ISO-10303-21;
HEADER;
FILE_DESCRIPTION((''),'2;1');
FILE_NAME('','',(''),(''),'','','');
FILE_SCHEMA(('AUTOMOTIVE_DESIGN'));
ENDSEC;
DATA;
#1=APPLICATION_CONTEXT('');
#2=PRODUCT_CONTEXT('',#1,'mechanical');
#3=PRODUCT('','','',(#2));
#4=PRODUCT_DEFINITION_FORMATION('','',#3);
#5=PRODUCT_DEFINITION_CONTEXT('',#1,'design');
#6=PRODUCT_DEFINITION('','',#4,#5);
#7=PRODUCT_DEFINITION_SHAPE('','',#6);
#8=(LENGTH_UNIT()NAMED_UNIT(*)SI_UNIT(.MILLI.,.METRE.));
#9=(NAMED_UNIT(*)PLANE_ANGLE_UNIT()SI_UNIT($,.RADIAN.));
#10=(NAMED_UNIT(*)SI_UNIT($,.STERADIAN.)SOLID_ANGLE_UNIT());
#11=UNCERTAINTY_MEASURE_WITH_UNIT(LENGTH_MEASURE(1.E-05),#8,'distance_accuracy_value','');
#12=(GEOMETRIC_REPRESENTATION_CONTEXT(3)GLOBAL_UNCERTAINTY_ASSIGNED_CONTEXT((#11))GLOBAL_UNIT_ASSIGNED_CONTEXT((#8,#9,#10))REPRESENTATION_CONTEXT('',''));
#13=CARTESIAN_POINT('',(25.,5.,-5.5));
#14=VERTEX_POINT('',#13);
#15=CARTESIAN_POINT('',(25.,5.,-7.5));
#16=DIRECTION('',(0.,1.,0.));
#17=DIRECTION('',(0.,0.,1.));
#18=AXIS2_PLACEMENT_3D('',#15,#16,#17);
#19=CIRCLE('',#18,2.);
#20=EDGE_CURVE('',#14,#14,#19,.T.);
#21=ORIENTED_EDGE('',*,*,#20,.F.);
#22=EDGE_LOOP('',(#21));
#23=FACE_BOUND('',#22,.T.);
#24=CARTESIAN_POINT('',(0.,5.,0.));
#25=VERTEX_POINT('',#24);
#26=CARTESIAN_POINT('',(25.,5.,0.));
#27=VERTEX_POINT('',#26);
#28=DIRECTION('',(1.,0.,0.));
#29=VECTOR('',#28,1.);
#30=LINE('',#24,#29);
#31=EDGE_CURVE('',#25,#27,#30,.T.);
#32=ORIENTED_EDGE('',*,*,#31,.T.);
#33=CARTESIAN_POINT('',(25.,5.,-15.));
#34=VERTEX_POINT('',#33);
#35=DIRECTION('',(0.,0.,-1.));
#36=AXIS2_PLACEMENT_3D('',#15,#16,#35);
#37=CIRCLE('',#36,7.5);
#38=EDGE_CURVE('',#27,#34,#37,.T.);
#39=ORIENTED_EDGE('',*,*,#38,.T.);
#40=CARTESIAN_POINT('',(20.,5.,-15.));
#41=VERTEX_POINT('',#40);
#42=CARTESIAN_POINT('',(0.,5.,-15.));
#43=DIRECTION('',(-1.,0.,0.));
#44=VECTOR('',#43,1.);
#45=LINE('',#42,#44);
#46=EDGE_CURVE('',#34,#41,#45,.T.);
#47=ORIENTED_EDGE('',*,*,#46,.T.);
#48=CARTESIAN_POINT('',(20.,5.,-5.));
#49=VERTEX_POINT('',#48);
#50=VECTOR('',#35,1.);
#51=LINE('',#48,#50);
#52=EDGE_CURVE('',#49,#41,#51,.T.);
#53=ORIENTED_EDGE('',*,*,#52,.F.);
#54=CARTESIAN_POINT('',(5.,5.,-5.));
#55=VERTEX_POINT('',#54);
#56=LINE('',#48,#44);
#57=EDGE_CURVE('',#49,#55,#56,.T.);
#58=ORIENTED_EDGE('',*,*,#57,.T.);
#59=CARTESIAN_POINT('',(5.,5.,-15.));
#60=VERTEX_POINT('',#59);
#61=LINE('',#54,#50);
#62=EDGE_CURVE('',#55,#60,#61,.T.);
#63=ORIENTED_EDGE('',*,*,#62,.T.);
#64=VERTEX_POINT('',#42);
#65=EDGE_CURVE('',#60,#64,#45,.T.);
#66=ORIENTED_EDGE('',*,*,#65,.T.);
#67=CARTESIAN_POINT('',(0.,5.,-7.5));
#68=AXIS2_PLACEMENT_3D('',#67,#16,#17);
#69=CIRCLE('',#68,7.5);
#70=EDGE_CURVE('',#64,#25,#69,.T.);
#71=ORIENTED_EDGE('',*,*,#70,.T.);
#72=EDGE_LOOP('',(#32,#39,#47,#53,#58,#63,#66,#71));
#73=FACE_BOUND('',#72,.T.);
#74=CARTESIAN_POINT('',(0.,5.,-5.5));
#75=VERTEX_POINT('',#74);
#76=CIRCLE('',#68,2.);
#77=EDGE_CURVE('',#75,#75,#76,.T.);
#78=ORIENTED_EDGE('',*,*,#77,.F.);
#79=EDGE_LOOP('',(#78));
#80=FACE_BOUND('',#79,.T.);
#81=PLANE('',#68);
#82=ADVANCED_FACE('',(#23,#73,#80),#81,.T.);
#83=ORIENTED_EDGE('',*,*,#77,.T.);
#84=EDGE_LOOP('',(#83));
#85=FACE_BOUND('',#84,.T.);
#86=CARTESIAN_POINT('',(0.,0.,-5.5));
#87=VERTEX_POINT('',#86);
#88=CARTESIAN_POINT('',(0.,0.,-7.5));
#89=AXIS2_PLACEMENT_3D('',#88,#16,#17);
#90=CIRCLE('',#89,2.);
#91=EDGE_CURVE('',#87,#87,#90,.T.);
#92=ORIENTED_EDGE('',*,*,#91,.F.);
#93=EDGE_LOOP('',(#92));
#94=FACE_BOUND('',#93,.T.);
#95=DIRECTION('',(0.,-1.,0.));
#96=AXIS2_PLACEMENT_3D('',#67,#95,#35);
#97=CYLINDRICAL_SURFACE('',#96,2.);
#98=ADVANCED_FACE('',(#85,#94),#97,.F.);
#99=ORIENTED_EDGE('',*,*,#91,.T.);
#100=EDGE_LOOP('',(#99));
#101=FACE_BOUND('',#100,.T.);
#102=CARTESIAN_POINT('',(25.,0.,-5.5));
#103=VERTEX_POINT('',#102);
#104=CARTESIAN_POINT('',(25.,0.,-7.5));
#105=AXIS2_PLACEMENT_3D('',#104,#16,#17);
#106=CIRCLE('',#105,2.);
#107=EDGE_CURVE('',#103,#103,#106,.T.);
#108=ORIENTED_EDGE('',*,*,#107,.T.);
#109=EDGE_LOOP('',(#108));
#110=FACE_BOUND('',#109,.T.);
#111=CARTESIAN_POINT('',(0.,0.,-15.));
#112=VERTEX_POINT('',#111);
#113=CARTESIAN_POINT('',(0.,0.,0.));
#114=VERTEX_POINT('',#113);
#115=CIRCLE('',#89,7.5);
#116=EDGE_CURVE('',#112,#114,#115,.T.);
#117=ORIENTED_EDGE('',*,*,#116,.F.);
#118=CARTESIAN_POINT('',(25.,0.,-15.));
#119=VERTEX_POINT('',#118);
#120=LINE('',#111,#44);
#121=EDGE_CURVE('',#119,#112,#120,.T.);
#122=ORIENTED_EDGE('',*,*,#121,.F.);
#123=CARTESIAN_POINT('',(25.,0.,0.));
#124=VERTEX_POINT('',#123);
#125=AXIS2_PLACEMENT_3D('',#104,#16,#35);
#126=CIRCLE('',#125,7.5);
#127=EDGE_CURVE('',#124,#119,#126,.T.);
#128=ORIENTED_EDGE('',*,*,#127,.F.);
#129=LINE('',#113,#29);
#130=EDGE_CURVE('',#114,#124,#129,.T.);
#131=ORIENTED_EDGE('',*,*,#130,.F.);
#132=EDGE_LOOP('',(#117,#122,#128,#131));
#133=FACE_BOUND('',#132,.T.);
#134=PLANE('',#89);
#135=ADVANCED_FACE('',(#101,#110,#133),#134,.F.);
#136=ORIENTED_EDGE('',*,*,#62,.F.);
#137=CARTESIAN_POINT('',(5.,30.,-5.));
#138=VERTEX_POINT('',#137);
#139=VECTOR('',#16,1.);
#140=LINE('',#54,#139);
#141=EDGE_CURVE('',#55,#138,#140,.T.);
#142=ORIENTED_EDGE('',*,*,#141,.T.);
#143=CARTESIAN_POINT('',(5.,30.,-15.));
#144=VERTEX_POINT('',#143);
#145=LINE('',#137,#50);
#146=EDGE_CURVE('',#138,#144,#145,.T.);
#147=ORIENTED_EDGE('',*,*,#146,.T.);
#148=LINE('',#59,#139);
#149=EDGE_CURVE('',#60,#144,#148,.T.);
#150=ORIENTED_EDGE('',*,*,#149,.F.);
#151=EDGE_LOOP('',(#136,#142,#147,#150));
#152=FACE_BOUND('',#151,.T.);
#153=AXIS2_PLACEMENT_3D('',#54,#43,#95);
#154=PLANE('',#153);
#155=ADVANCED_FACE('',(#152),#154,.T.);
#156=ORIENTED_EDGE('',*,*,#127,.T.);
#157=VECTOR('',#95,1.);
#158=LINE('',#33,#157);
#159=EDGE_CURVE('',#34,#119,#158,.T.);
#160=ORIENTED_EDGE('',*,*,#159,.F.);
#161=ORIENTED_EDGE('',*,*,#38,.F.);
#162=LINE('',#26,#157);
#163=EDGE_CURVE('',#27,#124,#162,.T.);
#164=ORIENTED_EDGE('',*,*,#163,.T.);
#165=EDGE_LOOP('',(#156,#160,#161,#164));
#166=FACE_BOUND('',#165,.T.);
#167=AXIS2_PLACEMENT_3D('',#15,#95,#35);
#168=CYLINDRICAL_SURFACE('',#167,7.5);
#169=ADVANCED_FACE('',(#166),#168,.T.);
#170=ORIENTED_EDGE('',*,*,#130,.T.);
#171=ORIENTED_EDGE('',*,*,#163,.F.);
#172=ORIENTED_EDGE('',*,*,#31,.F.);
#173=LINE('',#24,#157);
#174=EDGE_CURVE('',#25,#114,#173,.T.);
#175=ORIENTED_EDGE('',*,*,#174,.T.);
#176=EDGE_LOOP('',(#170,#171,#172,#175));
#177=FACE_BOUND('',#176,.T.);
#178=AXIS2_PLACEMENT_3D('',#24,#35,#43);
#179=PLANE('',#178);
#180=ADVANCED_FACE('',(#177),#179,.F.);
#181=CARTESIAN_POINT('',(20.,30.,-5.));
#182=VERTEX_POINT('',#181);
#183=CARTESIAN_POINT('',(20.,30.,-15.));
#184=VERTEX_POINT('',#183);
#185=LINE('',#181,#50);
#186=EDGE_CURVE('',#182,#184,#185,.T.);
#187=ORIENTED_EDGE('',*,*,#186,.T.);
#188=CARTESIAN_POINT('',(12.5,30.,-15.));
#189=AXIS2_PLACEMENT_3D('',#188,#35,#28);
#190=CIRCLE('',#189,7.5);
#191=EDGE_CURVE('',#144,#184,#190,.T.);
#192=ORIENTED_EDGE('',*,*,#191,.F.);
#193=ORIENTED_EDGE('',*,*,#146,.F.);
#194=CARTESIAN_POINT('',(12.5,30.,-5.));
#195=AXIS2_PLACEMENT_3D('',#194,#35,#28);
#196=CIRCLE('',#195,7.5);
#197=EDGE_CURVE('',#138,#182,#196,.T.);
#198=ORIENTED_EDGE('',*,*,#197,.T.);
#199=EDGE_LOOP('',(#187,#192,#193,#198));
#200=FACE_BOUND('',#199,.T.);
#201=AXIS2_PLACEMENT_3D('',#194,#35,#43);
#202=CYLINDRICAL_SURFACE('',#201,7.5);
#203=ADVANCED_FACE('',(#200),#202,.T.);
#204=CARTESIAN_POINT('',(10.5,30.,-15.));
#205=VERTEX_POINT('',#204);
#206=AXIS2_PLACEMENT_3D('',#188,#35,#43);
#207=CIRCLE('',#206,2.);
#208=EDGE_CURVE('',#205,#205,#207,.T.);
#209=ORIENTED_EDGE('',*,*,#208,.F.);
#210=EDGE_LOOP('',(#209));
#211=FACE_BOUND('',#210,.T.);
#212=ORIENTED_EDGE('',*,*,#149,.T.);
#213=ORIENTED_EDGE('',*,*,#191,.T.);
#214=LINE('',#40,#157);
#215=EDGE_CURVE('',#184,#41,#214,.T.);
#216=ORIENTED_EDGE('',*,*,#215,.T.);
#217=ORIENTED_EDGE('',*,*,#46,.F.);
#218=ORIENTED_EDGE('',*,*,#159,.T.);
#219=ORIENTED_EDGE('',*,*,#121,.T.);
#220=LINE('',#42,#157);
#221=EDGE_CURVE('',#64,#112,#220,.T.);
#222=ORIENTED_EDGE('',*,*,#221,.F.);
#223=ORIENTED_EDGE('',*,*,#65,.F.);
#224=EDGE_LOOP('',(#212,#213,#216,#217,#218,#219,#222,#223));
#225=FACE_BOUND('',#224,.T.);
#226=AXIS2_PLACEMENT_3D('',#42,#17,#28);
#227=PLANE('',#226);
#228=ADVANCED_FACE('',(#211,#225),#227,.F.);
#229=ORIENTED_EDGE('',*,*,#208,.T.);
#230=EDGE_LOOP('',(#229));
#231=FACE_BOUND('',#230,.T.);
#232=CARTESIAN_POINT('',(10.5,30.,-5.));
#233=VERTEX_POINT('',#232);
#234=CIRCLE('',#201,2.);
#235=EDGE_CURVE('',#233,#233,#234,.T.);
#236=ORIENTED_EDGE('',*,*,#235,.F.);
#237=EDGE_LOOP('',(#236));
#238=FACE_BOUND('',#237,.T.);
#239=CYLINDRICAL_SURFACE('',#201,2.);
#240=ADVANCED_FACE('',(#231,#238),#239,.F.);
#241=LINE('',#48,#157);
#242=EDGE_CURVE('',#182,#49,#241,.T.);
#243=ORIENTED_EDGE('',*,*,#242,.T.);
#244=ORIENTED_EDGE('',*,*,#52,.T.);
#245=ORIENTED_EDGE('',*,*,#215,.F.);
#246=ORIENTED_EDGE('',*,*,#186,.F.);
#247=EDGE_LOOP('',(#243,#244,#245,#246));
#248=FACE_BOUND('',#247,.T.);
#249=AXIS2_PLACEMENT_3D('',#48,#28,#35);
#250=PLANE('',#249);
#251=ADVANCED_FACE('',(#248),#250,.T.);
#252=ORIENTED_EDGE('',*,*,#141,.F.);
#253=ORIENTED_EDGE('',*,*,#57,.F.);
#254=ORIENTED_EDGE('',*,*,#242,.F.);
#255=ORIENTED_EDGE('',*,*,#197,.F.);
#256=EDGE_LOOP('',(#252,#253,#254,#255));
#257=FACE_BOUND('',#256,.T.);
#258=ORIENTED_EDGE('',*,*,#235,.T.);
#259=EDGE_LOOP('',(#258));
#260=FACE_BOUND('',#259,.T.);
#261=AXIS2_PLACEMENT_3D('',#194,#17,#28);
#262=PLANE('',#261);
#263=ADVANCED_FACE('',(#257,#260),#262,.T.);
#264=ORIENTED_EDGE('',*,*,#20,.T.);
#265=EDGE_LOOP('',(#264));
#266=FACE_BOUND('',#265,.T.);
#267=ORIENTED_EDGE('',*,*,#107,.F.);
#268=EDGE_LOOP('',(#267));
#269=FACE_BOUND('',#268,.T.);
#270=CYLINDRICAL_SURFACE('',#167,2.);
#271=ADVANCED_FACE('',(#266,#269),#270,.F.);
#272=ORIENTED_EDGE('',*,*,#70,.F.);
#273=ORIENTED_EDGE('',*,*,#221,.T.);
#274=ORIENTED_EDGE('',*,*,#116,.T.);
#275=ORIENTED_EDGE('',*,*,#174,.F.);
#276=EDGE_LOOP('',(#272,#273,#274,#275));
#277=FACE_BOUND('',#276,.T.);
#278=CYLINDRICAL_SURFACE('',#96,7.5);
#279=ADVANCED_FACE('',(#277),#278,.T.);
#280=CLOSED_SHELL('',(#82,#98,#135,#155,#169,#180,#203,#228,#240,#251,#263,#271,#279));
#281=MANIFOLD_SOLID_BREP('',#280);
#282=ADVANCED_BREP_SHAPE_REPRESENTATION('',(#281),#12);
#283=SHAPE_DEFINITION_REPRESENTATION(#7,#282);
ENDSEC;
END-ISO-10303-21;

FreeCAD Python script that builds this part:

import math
import FreeCAD as App
import Part
import Sketcher

V = App.Vector
Q = App.Units.Quantity

doc = App.newDocument("Part")
body = doc.addObject("PartDesign::Body", "Body")

# Sketch on XZ plane
sketch1 = body.newObject("Sketcher::SketchObject", "Sketch")
sketch1.AttachmentSupport = (doc.getObject("XZ_Plane"), [""])
sketch1.MapMode = "FlatFace"
sketch1.addGeometry([
    Part.LineSegment(V(0, 0, 0), V(25, 0, 0)),  # 0
    Part.ArcOfCircle(Part.Circle(V(25, -7.5, 0), V(0, 0, 1), 7.5), math.radians(-90), math.radians(90)),  # 1
    Part.LineSegment(V(25, -15, 0), V(0, -15, 0)),  # 2
    Part.ArcOfCircle(Part.Circle(V(0, -7.5, 0), V(0, 0, 1), 7.5), math.radians(90), math.radians(270)),  # 3
    Part.Circle(V(0, -7.5, 0), V(0, 0, 1), 2),  # 4
    Part.Circle(V(25, -7.5, 0), V(0, 0, 1), 2),  # 5
], False)
sketch1.addConstraint([
    Sketcher.Constraint("Tangent", 0, 2, 1, 2),
    Sketcher.Constraint("Tangent", 1, 1, 2, 1),
    Sketcher.Constraint("Tangent", 2, 2, 3, 2),
    Sketcher.Constraint("Tangent", 3, 1, 0, 1),
    Sketcher.Constraint("Horizontal", 0),
    Sketcher.Constraint("Horizontal", 2),
    Sketcher.Constraint("Coincident", 3, 1, -1, 1),
    Sketcher.Constraint("Coincident", 4, 3, 3, 3),
    Sketcher.Constraint("Coincident", 5, 3, 1, 3),
    Sketcher.Constraint("Equal", 4, 5),
    Sketcher.Constraint("Diameter", 4, Q("4 mm")),
    Sketcher.Constraint("Radius", 1, Q("7.5 mm")),
    Sketcher.Constraint("DistanceX", 0, 1, 0, 2, Q("25 mm")),
])
pad1 = body.newObject("PartDesign::Pad", "Pad")
pad1.Profile = sketch1
pad1.Length = 5
pad1.Reversed = True

# Sketch on XY plane
sketch2 = body.newObject("Sketcher::SketchObject", "Sketch001")
sketch2.AttachmentSupport = (doc.getObject("XY_Plane"), [""])
sketch2.MapMode = "FlatFace"
sketch2.AttachmentOffset = App.Placement(V(0, 0, -15), App.Rotation())
sketch2.addGeometry([
    Part.LineSegment(V(20, 5, 0), V(5, 5, 0)),  # 0
    Part.LineSegment(V(5, 5, 0), V(5, 30, 0)),  # 1
    Part.ArcOfCircle(Part.Circle(V(12.5, 30, 0), V(0, 0, 1), 7.5), math.radians(0), math.radians(180)),  # 2
    Part.LineSegment(V(20, 30, 0), V(20, 5, 0)),  # 3
    Part.Circle(V(12.5, 30, 0), V(0, 0, 1), 2),  # 4
], False)
sketch2.addConstraint([
    Sketcher.Constraint("Coincident", 0, 2, 1, 1),
    Sketcher.Constraint("Tangent", 1, 2, 2, 2),
    Sketcher.Constraint("Tangent", 2, 1, 3, 1),
    Sketcher.Constraint("Coincident", 3, 2, 0, 1),
    Sketcher.Constraint("Horizontal", 0),
    Sketcher.Constraint("Vertical", 1),
    Sketcher.Constraint("Vertical", 3),
    Sketcher.Constraint("Coincident", 4, 3, 2, 3),
    Sketcher.Constraint("Diameter", 4, Q("4 mm")),
    Sketcher.Constraint("Radius", 2, Q("7.5 mm")),
    Sketcher.Constraint("DistanceY", 1, 1, 1, 2, Q("25 mm")),
    Sketcher.Constraint("DistanceY", -1, 1, 2, 3, Q("30 mm")),
    Sketcher.Constraint("DistanceX", -1, 1, 0, 2, Q("5 mm")),
])
pad2 = body.newObject("PartDesign::Pad", "Pad001")
pad2.Profile = sketch2
pad2.Length = 10

doc.recompute()
